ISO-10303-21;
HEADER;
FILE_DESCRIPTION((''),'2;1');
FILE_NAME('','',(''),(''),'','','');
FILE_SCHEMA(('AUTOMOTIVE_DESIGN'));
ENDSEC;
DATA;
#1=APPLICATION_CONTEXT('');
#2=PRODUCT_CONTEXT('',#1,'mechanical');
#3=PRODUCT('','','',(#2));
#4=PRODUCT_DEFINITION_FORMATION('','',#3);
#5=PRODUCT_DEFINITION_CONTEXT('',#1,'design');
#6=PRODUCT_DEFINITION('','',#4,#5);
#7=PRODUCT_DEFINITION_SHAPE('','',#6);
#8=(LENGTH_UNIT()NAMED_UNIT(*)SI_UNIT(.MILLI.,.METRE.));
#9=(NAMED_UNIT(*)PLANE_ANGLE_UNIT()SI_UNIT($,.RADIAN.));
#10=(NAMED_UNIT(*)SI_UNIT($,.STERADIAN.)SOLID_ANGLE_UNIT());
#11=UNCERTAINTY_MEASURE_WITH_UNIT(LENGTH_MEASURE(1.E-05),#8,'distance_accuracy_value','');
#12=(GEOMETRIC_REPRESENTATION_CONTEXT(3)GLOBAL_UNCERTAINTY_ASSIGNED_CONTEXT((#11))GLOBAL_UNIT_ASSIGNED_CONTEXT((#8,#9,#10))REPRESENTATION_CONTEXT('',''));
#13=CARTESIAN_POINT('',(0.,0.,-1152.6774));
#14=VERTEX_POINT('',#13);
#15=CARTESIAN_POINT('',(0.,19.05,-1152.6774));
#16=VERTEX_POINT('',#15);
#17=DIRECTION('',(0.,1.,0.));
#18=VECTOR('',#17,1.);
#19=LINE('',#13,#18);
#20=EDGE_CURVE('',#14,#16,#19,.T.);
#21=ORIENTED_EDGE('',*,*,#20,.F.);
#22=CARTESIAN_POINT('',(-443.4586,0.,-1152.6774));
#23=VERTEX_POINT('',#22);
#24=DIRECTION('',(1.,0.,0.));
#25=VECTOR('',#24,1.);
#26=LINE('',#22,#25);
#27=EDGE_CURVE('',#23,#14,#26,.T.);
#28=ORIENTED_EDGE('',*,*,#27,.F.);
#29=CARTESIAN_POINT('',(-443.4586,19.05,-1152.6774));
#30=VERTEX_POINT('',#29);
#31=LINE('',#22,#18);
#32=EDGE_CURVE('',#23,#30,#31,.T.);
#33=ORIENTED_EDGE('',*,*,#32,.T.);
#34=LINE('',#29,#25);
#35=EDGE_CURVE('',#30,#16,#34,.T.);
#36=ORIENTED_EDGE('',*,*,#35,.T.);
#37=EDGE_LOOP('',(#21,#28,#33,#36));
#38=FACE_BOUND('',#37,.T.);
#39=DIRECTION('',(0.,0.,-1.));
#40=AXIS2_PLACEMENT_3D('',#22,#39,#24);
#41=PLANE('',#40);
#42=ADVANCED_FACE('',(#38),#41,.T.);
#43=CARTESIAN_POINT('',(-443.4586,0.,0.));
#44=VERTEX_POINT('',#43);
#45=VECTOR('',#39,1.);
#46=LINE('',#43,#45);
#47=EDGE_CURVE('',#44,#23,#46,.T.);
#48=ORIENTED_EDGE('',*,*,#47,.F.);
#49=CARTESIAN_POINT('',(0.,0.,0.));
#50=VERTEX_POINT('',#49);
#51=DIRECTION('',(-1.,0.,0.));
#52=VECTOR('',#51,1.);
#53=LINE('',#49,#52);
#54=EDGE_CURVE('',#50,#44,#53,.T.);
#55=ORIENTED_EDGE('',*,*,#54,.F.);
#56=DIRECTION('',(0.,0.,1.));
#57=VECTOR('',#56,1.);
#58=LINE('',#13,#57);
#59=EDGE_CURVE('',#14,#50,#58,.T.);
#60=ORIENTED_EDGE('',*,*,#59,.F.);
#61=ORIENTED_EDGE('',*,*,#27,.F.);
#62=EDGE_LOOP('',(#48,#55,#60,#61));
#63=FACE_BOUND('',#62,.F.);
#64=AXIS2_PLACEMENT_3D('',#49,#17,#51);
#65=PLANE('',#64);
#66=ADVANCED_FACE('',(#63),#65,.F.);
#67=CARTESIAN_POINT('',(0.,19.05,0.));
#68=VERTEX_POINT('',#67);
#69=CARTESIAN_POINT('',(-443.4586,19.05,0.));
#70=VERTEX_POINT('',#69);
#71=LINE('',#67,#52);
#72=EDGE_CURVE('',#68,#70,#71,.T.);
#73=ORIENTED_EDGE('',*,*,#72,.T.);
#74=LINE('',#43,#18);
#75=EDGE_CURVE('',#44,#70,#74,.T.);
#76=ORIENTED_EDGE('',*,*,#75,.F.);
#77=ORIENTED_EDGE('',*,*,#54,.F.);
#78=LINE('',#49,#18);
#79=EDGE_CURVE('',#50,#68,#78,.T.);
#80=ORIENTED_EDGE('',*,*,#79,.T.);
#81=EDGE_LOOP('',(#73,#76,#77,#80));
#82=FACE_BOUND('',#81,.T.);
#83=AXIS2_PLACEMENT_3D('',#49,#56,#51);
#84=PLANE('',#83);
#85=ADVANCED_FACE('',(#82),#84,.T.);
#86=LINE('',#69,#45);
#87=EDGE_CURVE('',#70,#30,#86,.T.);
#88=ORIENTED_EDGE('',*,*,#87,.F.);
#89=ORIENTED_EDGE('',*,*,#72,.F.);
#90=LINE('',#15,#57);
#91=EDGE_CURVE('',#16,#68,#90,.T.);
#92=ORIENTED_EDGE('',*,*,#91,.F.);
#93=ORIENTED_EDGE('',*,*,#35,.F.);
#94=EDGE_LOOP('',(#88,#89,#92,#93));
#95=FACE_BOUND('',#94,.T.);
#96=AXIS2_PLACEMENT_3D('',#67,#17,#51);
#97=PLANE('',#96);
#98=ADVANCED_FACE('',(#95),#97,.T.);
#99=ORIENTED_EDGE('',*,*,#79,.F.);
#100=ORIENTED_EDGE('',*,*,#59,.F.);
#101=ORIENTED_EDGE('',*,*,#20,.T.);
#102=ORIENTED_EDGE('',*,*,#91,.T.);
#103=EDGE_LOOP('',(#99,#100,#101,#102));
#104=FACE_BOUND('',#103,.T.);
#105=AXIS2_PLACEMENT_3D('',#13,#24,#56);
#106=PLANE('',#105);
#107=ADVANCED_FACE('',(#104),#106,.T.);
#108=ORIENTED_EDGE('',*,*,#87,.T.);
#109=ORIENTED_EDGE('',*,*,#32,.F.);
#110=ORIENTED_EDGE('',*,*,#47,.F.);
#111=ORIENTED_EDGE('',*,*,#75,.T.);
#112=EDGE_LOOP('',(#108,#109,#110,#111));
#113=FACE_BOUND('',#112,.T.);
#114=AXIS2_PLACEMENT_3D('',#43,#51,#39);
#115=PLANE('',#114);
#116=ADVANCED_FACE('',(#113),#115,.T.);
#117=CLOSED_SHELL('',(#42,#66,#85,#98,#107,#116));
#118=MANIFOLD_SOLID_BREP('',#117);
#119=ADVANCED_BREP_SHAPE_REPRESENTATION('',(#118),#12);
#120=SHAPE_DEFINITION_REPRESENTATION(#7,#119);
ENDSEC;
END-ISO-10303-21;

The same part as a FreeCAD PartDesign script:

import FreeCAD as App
import Part
import Sketcher
from FreeCAD import Vector
Q = App.Units.Quantity


def add_polygon(sketch, points):
    """Adds a closed chain of lines whose ends are joined by coincident constraints."""
    first, n = sketch.GeometryCount, len(points)
    for a, b in zip(points, points[1:] + points[:1]):
        sketch.addGeometry(Part.LineSegment(App.Vector(*a, 0), App.Vector(*b, 0)), False)
    for i in range(n):
        sketch.addConstraint(Sketcher.Constraint("Coincident", first + i, 2, first + (i + 1) % n, 1))

doc = App.newDocument("Part")
params = doc.addObject("Spreadsheet::Sheet", "Params")
for row, (alias, value) in enumerate([
    ("sketch1_width", "17.459 in"),
    ("sketch1_height", "45.381 in"),
    ("pad1_length", "0.75 in"),
], start=1):
    params.set(f"A{row}", alias)
    params.set(f"B{row}", "=" + value)
    params.setAlias(f"B{row}", alias)

body = doc.addObject("PartDesign::Body", "Body")

sketch1 = body.newObject("Sketcher::SketchObject", "Sketch")
sketch1.AttachmentSupport = (doc.getObject("XZ_Plane"), [""])
sketch1.MapMode = "FlatFace"
add_polygon(sketch1, [(-443, 0), (0, 0), (0, -1153), (-443, -1153)])
sketch1.addConstraint([
    Sketcher.Constraint("Horizontal", 0),
    Sketcher.Constraint("Vertical", 1),
    Sketcher.Constraint("Horizontal", 2),
    Sketcher.Constraint("Vertical", 3),
    Sketcher.Constraint("Coincident", 0, 2, -1, 1),
    Sketcher.Constraint("DistanceX", 0, 1, 0, 2, Q("17.459 in")),
    Sketcher.Constraint("DistanceY", 1, 2, 1, 1, Q("45.381 in")),
])
sketch1.setExpression("Constraints[9]", "Params.sketch1_width")
sketch1.setExpression("Constraints[10]", "Params.sketch1_height")
pad1 = body.newObject("PartDesign::Pad", "Pad")
pad1.Profile = sketch1
pad1.setExpression("Length", "Params.pad1_length")
pad1.Reversed = True

doc.recompute()
